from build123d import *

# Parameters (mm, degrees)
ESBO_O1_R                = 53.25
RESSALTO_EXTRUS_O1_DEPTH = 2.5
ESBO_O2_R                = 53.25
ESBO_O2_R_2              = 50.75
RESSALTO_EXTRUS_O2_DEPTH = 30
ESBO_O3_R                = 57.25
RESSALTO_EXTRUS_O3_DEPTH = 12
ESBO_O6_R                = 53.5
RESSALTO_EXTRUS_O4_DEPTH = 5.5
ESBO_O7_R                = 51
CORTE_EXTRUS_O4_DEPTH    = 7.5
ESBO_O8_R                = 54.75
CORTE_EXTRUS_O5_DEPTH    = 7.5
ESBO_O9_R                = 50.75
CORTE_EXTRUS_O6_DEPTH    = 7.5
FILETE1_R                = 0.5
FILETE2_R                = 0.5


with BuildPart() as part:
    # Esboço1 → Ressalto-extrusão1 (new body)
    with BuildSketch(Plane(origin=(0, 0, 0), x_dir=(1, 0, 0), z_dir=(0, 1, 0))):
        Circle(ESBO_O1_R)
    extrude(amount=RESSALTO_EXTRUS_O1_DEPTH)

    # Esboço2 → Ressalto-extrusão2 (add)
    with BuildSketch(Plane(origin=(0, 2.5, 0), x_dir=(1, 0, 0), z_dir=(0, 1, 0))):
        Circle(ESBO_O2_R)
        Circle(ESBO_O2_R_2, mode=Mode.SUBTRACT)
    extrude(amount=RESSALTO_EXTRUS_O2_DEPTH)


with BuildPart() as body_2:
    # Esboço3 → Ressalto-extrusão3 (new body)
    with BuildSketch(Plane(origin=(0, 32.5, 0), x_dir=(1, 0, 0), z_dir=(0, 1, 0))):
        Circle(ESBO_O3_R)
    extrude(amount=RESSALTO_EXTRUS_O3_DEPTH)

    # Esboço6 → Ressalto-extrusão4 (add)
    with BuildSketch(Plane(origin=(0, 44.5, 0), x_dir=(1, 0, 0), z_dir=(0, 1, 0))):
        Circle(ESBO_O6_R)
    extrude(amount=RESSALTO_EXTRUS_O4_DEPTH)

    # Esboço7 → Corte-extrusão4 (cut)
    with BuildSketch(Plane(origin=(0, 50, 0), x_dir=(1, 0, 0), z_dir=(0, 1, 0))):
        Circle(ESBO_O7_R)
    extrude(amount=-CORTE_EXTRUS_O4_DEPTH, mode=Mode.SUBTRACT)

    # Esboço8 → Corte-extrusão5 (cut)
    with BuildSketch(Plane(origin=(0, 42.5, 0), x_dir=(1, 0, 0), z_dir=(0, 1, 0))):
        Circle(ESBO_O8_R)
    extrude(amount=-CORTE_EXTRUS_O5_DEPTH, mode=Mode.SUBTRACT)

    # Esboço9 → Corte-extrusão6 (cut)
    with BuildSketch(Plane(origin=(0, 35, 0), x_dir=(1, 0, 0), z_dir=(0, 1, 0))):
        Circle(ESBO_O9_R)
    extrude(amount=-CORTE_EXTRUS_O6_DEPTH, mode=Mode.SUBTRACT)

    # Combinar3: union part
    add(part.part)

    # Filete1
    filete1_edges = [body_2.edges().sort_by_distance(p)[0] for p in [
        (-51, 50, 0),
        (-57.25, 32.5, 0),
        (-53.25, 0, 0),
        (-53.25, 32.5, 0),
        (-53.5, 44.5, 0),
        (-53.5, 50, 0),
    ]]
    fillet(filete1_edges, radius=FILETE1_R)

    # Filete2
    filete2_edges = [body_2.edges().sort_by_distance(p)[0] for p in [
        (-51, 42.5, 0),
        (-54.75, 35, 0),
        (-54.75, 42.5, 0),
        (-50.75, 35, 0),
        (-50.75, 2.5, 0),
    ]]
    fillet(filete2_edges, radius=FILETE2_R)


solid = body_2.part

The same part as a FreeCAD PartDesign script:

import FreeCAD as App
import Part
import Sketcher

V = App.Vector
Q = App.Units.Quantity


def edges_at(feature, points):
    """Names of the edges that pass closest to the given points."""
    edges = feature.Shape.Edges
    near = lambda p: min(range(len(edges)), key=lambda i: edges[i].distToShape(Part.Vertex(*p))[0])
    return sorted({f"Edge{near(p) + 1}" for p in points})

doc = App.newDocument("Part")
params = doc.addObject("Spreadsheet::Sheet", "Params")
for row, (alias, value) in enumerate([
    ("sketch1_diameter", "106.5 mm"),
    ("pad1_length", "2.5 mm"),
    ("sketch2_diameter", "106.5 mm"),
    ("sketch2_diameter2", "101.5 mm"),
    ("pad2_length", "30 mm"),
    ("sketch3_diameter", "114.5 mm"),
    ("pad3_length", "12 mm"),
    ("sketch4_diameter", "107 mm"),
    ("pad4_length", "5.5 mm"),
    ("sketch5_diameter", "102 mm"),
    ("pocket1_length", "7.5 mm"),
    ("sketch6_diameter", "109.5 mm"),
    ("pocket2_length", "7.5 mm"),
    ("sketch7_diameter", "101.5 mm"),
    ("pocket3_length", "7.5 mm"),
    ("fillet_radius", "0.5 mm"),
    ("fillet2_radius", "0.5 mm"),
], start=1):
    params.set(f"A{row}", alias)
    params.set(f"B{row}", "=" + value)
    params.setAlias(f"B{row}", alias)

body = doc.addObject("PartDesign::Body", "Body")

# Sketch on XZ plane
sketch1 = doc.addObject("Sketcher::SketchObject", "Sketch")
body.addObject(sketch1)
sketch1.AttachmentSupport = (doc.XZ_Plane, [""])
sketch1.MapMode = "FlatFace"
sketch1.addGeometry(Part.Circle(V(0, 0, 0), V(0, 0, 1), 53), False)
sketch1.addConstraint(Sketcher.Constraint("Coincident", 0, 3, -1, 1))
sketch1.addConstraint(Sketcher.Constraint("Diameter", 0, Q("106.5 mm")))
sketch1.setExpression("Constraints[1]", "Params.sketch1_diameter")
pad1 = doc.addObject("PartDesign::Pad", "Pad")
body.addObject(pad1)
pad1.Profile = sketch1
pad1.setExpression("Length", "Params.pad1_length")
pad1.Reversed = True

# Sketch on XZ plane
sketch2 = doc.addObject("Sketcher::SketchObject", "Sketch001")
body.addObject(sketch2)
sketch2.AttachmentSupport = (doc.XZ_Plane, [""])
sketch2.MapMode = "FlatFace"
sketch2.AttachmentOffset = App.Placement(V(0, 0, -2.5), App.Rotation())
sketch2.addGeometry(Part.Circle(V(0, 0, 0), V(0, 0, 1), 53), False)
sketch2.addGeometry(Part.Circle(V(0, 0, 0), V(0, 0, 1), 51), False)
sketch2.addConstraint(Sketcher.Constraint("Coincident", 0, 3, -1, 1))
sketch2.addConstraint(Sketcher.Constraint("Coincident", 1, 3, -1, 1))
sketch2.addConstraint(Sketcher.Constraint("Diameter", 0, Q("106.5 mm")))
sketch2.addConstraint(Sketcher.Constraint("Diameter", 1, Q("101.5 mm")))
sketch2.setExpression("Constraints[2]", "Params.sketch2_diameter")
sketch2.setExpression("Constraints[3]", "Params.sketch2_diameter2")
pad2 = doc.addObject("PartDesign::Pad", "Pad001")
body.addObject(pad2)
pad2.Profile = sketch2
pad2.setExpression("Length", "Params.pad2_length")
pad2.Reversed = True
body2 = doc.addObject("PartDesign::Body", "Body001")

# Sketch on XZ plane
sketch3 = doc.addObject("Sketcher::SketchObject", "Sketch002")
body2.addObject(sketch3)
sketch3.AttachmentSupport = (doc.getObject("XZ_Plane001"), [""])
sketch3.MapMode = "FlatFace"
sketch3.AttachmentOffset = App.Placement(V(0, 0, -32.5), App.Rotation())
sketch3.addGeometry(Part.Circle(V(0, 0, 0), V(0, 0, 1), 57), False)
sketch3.addConstraint(Sketcher.Constraint("Coincident", 0, 3, -1, 1))
sketch3.addConstraint(Sketcher.Constraint("Diameter", 0, Q("114.5 mm")))
sketch3.setExpression("Constraints[1]", "Params.sketch3_diameter")
pad3 = doc.addObject("PartDesign::Pad", "Pad002")
body2.addObject(pad3)
pad3.Profile = sketch3
pad3.setExpression("Length", "Params.pad3_length")
pad3.Reversed = True

# Sketch on XZ plane
sketch4 = doc.addObject("Sketcher::SketchObject", "Sketch003")
body2.addObject(sketch4)
sketch4.AttachmentSupport = (doc.getObject("XZ_Plane001"), [""])
sketch4.MapMode = "FlatFace"
sketch4.AttachmentOffset = App.Placement(V(0, 0, -44.5), App.Rotation())
sketch4.addGeometry(Part.Circle(V(0, 0, 0), V(0, 0, 1), 54), False)
sketch4.addConstraint(Sketcher.Constraint("Coincident", 0, 3, -1, 1))
sketch4.addConstraint(Sketcher.Constraint("Diameter", 0, Q("107 mm")))
sketch4.setExpression("Constraints[1]", "Params.sketch4_diameter")
pad4 = doc.addObject("PartDesign::Pad", "Pad003")
body2.addObject(pad4)
pad4.Profile = sketch4
pad4.setExpression("Length", "Params.pad4_length")
pad4.Reversed = True

# Sketch on XZ plane
sketch5 = doc.addObject("Sketcher::SketchObject", "Sketch004")
body2.addObject(sketch5)
sketch5.AttachmentSupport = (doc.getObject("XZ_Plane001"), [""])
sketch5.MapMode = "FlatFace"
sketch5.AttachmentOffset = App.Placement(V(0, 0, -50), App.Rotation())
sketch5.addGeometry(Part.Circle(V(0, 0, 0), V(0, 0, 1), 51), False)
sketch5.addConstraint(Sketcher.Constraint("Coincident", 0, 3, -1, 1))
sketch5.addConstraint(Sketcher.Constraint("Diameter", 0, Q("102 mm")))
sketch5.setExpression("Constraints[1]", "Params.sketch5_diameter")
pocket1 = doc.addObject("PartDesign::Pocket", "Pocket")
body2.addObject(pocket1)
pocket1.Profile = sketch5
pocket1.setExpression("Length", "Params.pocket1_length")
pocket1.Reversed = True

# Sketch on XZ plane
sketch6 = doc.addObject("Sketcher::SketchObject", "Sketch005")
body2.addObject(sketch6)
sketch6.AttachmentSupport = (doc.getObject("XZ_Plane001"), [""])
sketch6.MapMode = "FlatFace"
sketch6.AttachmentOffset = App.Placement(V(0, 0, -42.5), App.Rotation())
sketch6.addGeometry(Part.Circle(V(0, 0, 0), V(0, 0, 1), 55), False)
sketch6.addConstraint(Sketcher.Constraint("Coincident", 0, 3, -1, 1))
sketch6.addConstraint(Sketcher.Constraint("Diameter", 0, Q("109.5 mm")))
sketch6.setExpression("Constraints[1]", "Params.sketch6_diameter")
pocket2 = doc.addObject("PartDesign::Pocket", "Pocket001")
body2.addObject(pocket2)
pocket2.Profile = sketch6
pocket2.setExpression("Length", "Params.pocket2_length")
pocket2.Reversed = True

# Sketch on XZ plane
sketch7 = doc.addObject("Sketcher::SketchObject", "Sketch006")
body2.addObject(sketch7)
sketch7.AttachmentSupport = (doc.getObject("XZ_Plane001"), [""])
sketch7.MapMode = "FlatFace"
sketch7.AttachmentOffset = App.Placement(V(0, 0, -35), App.Rotation())
sketch7.addGeometry(Part.Circle(V(0, 0, 0), V(0, 0, 1), 51), False)
sketch7.addConstraint(Sketcher.Constraint("Coincident", 0, 3, -1, 1))
sketch7.addConstraint(Sketcher.Constraint("Diameter", 0, Q("101.5 mm")))
sketch7.setExpression("Constraints[1]", "Params.sketch7_diameter")
pocket3 = doc.addObject("PartDesign::Pocket", "Pocket002")
body2.addObject(pocket3)
pocket3.Profile = sketch7
pocket3.setExpression("Length", "Params.pocket3_length")
pocket3.Reversed = True
doc.recompute()

boolean = doc.addObject("PartDesign::Boolean", "Boolean")
body2.addObject(boolean)
boolean.Type = "Fuse"
boolean.addObjects([body])
doc.recompute()

fillet = doc.addObject("PartDesign::Fillet", "Fillet")
body2.addObject(fillet)
fillet.Base = (boolean, edges_at(boolean, [
    (-51, 50, 0),
    (-57.25, 32.5, 0),
    (-53.25, 0, 0),
    (-53.25, 32.5, 0),
    (-53.5, 44.5, 0),
    (-53.5, 50, 0),
]))
fillet.setExpression("Radius", "Params.fillet_radius")
doc.recompute()

fillet2 = doc.addObject("PartDesign::Fillet", "Fillet001")
body2.addObject(fillet2)
fillet2.Base = (fillet, edges_at(fillet, [
    (-51, 42.5, 0),
    (-54.75, 35, 0),
    (-54.75, 42.5, 0),
    (-50.75, 35, 0),
    (-50.75, 2.5, 0),
]))
fillet2.setExpression("Radius", "Params.fillet2_radius")

doc.recompute()
